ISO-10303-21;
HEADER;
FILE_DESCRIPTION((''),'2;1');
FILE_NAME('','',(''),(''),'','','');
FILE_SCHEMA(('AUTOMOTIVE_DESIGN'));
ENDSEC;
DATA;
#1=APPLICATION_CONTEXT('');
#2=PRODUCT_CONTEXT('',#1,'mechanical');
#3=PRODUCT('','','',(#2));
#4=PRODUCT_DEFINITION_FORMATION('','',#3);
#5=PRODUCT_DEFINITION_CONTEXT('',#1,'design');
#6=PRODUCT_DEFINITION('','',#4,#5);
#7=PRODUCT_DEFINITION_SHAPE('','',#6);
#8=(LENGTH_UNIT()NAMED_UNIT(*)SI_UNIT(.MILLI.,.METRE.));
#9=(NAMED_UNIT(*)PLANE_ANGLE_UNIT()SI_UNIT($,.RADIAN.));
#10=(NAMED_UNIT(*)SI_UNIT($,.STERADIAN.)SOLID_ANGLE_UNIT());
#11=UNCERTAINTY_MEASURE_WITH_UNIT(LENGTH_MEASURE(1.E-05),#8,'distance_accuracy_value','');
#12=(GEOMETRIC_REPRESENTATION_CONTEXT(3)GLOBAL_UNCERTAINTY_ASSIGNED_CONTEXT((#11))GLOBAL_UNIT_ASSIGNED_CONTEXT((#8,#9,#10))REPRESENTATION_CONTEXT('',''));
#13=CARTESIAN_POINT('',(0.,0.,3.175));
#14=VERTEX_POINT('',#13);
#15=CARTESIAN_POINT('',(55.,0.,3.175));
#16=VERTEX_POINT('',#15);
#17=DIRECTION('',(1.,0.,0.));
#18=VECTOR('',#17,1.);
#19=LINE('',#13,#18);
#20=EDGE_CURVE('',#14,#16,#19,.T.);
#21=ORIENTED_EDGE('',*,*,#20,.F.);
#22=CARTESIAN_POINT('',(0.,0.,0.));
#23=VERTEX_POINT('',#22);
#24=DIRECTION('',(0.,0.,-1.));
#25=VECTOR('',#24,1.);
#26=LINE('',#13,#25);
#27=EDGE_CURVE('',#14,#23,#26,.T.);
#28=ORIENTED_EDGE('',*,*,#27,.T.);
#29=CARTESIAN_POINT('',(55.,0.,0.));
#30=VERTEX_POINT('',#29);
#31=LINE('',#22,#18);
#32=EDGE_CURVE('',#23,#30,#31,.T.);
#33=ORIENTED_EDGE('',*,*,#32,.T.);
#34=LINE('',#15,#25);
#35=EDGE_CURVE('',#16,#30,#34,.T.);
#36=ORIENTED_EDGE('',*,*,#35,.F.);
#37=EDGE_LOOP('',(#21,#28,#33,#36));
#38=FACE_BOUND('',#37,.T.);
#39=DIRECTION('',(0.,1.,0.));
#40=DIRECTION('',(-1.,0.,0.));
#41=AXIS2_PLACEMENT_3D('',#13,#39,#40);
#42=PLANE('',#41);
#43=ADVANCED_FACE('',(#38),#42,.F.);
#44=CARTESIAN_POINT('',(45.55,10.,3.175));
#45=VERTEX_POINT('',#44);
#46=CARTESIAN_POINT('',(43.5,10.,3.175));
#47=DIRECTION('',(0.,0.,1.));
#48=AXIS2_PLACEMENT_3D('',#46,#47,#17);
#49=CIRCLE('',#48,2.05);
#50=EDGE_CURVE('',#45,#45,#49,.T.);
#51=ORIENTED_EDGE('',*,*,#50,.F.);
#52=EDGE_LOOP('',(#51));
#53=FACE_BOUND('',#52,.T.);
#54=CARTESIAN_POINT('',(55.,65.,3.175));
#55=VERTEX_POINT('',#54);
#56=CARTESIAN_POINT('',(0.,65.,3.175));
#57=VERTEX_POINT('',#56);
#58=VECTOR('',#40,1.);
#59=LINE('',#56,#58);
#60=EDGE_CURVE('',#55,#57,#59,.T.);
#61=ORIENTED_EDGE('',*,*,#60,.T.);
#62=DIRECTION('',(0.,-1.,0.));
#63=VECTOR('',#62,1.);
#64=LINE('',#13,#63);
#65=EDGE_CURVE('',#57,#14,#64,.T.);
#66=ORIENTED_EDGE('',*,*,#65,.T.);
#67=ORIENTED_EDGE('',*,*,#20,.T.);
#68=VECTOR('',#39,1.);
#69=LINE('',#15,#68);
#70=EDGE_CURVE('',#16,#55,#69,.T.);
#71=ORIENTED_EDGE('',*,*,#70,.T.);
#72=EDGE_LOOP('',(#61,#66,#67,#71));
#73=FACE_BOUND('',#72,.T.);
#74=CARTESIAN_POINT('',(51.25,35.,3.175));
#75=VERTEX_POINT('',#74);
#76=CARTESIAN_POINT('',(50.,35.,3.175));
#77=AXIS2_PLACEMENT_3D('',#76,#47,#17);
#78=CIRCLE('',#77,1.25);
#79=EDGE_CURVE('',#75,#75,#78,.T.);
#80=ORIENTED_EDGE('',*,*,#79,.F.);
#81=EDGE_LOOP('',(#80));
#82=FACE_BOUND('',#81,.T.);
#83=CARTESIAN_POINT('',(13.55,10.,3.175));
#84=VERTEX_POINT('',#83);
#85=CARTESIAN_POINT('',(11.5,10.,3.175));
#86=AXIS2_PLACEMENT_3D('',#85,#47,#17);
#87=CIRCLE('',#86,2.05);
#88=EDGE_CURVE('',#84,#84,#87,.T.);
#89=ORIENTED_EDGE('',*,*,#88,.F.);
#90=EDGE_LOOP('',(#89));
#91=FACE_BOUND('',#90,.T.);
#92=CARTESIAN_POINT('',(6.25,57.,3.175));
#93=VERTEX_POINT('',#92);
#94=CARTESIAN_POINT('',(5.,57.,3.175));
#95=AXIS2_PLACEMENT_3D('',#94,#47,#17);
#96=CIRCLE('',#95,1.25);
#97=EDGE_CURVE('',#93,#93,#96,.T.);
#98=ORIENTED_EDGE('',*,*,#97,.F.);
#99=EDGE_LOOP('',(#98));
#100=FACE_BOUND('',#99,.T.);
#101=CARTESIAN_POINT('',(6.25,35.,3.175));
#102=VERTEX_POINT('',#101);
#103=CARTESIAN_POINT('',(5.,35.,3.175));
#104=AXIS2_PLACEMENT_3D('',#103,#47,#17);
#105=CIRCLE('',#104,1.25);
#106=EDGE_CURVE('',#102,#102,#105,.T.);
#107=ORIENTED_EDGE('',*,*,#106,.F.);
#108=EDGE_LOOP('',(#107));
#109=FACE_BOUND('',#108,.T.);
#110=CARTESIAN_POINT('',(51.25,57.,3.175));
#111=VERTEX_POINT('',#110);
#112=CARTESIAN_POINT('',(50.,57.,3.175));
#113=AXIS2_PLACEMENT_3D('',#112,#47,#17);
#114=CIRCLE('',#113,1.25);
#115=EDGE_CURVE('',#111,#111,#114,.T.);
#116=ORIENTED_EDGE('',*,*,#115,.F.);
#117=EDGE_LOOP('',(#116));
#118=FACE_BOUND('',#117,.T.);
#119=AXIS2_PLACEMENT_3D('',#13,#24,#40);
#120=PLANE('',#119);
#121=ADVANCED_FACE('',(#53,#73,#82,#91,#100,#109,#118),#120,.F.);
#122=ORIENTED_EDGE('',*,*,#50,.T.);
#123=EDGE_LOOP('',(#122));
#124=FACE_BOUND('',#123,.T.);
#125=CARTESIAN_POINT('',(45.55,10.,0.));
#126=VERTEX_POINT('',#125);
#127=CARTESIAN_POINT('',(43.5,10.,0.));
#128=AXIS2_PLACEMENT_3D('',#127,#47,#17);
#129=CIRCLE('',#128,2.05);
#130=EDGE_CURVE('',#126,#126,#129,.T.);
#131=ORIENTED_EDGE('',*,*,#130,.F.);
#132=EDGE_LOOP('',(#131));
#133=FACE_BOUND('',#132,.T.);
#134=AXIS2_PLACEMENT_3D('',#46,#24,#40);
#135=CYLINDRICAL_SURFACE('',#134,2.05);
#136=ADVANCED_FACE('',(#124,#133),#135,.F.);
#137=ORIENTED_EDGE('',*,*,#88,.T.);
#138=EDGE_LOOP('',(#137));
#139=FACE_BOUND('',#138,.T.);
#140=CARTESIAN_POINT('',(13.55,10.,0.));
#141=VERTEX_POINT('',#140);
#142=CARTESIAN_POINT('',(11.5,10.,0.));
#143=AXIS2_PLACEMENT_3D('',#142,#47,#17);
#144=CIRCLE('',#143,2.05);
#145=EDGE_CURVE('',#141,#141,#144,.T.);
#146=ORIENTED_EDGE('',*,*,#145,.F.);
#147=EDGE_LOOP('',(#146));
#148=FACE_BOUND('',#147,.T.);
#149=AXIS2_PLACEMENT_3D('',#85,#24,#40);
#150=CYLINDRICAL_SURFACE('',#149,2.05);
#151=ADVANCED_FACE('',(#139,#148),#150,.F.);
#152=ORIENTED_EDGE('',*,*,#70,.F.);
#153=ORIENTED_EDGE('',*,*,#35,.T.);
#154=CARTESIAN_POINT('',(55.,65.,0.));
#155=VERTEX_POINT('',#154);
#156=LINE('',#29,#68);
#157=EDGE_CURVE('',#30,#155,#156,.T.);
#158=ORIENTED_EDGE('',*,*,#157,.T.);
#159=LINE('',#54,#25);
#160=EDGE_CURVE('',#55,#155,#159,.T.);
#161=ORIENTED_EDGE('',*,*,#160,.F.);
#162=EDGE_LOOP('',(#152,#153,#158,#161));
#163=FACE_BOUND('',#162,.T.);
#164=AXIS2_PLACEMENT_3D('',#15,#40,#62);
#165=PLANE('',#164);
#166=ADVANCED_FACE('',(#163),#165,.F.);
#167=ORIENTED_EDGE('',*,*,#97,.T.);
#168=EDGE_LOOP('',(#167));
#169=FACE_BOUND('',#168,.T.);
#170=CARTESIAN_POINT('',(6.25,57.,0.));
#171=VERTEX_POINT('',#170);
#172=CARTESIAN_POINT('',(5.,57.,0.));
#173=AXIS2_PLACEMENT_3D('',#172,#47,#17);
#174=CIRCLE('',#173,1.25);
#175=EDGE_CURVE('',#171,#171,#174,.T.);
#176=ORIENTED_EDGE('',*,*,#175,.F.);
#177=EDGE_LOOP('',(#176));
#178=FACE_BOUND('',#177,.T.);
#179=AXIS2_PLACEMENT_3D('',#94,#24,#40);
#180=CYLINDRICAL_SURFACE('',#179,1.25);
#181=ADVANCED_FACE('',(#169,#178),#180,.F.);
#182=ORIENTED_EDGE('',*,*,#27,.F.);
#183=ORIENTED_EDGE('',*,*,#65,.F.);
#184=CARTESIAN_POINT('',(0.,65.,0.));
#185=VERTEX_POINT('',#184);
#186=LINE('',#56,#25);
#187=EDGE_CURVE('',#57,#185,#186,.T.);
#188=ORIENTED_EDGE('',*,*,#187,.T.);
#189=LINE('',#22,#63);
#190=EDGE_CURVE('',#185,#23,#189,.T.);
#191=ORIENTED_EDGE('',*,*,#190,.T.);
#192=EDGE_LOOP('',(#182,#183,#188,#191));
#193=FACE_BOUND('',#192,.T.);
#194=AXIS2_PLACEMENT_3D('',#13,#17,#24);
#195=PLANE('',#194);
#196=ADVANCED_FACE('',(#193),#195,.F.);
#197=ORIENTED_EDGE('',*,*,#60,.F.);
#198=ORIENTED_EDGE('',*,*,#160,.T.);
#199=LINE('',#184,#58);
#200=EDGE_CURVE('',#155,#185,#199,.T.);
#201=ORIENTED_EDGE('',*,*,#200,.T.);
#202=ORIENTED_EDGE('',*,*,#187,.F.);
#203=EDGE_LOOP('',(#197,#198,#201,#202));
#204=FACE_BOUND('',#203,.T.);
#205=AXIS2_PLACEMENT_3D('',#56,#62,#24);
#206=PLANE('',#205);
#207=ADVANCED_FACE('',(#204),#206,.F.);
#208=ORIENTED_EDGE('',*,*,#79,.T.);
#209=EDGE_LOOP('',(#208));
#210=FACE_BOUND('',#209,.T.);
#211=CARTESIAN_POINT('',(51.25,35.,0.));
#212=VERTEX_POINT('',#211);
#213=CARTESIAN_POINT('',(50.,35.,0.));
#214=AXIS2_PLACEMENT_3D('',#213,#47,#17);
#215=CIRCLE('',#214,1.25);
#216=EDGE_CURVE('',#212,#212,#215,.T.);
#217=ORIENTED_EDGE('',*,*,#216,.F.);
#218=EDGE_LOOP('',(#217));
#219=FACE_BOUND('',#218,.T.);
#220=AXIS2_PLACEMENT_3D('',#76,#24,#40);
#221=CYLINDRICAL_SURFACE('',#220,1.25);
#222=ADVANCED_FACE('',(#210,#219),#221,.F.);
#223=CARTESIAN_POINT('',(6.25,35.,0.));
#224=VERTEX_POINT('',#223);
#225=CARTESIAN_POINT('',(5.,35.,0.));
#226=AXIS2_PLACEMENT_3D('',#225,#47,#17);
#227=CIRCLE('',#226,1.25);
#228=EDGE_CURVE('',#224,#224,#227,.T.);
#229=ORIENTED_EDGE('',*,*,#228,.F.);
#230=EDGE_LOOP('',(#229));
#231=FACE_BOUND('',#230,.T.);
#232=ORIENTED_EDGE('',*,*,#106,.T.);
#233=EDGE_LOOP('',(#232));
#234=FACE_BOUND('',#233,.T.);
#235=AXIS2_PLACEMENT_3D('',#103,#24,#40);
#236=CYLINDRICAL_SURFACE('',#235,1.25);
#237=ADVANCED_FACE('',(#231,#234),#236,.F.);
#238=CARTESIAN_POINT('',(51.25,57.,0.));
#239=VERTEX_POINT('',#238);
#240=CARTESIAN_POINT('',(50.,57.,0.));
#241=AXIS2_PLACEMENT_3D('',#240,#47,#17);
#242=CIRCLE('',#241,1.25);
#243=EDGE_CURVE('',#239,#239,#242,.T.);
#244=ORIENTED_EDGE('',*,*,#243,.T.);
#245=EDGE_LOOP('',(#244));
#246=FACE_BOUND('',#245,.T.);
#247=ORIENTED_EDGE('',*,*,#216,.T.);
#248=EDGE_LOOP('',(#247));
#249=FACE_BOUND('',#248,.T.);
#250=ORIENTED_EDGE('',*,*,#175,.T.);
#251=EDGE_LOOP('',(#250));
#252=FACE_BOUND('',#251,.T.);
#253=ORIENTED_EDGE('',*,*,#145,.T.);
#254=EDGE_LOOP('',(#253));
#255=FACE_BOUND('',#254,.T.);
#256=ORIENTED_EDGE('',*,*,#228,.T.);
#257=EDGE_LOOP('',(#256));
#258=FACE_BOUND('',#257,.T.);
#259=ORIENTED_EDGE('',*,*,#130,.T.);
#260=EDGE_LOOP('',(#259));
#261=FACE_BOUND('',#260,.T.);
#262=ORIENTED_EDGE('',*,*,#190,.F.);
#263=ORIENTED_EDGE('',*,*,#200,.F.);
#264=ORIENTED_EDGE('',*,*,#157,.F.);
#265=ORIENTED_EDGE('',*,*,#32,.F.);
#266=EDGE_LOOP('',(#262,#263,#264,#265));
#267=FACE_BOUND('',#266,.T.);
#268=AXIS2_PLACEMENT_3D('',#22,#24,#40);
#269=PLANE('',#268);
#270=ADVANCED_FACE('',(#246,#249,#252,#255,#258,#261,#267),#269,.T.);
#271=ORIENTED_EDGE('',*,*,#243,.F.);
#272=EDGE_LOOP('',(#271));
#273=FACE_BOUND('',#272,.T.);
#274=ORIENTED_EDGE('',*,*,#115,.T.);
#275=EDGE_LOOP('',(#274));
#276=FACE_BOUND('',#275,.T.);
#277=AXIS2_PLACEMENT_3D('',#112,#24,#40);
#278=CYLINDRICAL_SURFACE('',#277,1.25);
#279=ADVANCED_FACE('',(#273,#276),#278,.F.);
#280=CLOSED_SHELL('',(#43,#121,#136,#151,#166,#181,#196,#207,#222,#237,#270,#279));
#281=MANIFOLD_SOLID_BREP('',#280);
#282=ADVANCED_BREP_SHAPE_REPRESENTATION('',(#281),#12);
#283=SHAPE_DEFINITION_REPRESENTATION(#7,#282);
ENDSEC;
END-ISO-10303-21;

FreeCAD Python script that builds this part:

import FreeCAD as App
import Part
import Sketcher
from FreeCAD import Vector

doc = App.newDocument("Part")
body = doc.addObject("PartDesign::Body", "Body")

# Sketch on XY plane
sketch1 = doc.addObject("Sketcher::SketchObject", "Sketch")
body.addObject(sketch1)
sketch1.AttachmentSupport = (doc.XY_Plane, [""])
sketch1.MapMode = "FlatFace"
sketch1.addGeometry([
    Part.LineSegment(Vector(0, 65, 0), Vector(0, 0, 0)),  # 0
    Part.LineSegment(Vector(0, 0, 0), Vector(55, 0, 0)),  # 1
    Part.LineSegment(Vector(55, 0, 0), Vector(55, 65, 0)),  # 2
    Part.LineSegment(Vector(55, 65, 0), Vector(0, 65, 0)),  # 3
    Part.Circle(Vector(11.5, 10, 0), Vector(0, 0, 1), 2.05),  # 4
    Part.Circle(Vector(43.5, 10, 0), Vector(0, 0, 1), 2.05),  # 5
    Part.Circle(Vector(5, 35, 0), Vector(0, 0, 1), 1.25),  # 6
    Part.Circle(Vector(5, 57, 0), Vector(0, 0, 1), 1.25),  # 7
    Part.Circle(Vector(50, 35, 0), Vector(0, 0, 1), 1.25),  # 8
    Part.Circle(Vector(50, 57, 0), Vector(0, 0, 1), 1.25),  # 9
], False)
sketch1.addConstraint([
    Sketcher.Constraint("Coincident", 0, 2, 1, 1),
    Sketcher.Constraint("Coincident", 1, 2, 2, 1),
    Sketcher.Constraint("Coincident", 2, 2, 3, 1),
    Sketcher.Constraint("Coincident", 3, 2, 0, 1),
    Sketcher.Constraint("Vertical", 0),
    Sketcher.Constraint("Horizontal", 1),
    Sketcher.Constraint("Vertical", 2),
    Sketcher.Constraint("Horizontal", 3),
    Sketcher.Constraint("Coincident", 0, 2, -1, 1),
    Sketcher.Constraint("Equal", 4, 5),
    Sketcher.Constraint("Equal", 6, 7),
    Sketcher.Constraint("Equal", 7, 8),
    Sketcher.Constraint("Equal", 8, 9),
    Sketcher.Constraint("Horizontal", 4, 3, 5, 3),
    Sketcher.Constraint("Horizontal", 6, 3, 8, 3),
    Sketcher.Constraint("Horizontal", 7, 3, 9, 3),
    Sketcher.Constraint("Vertical", 6, 3, 7, 3),
    Sketcher.Constraint("Vertical", 8, 3, 9, 3),
    Sketcher.Constraint("Diameter", 4, 4.1),
    Sketcher.Constraint("Diameter", 6, 2.5),
    Sketcher.Constraint("DistanceX", 1, 1, 1, 2, 55.0),
    Sketcher.Constraint("DistanceY", 0, 2, 0, 1, 65.0),
    Sketcher.Constraint("DistanceY", -1, 1, 4, 3, 10.0),
    Sketcher.Constraint("DistanceX", -1, 1, 6, 3, 5.0),
    Sketcher.Constraint("DistanceY", -1, 1, 6, 3, 35.0),
    Sketcher.Constraint("DistanceY", -1, 1, 7, 3, 57.0),
    Sketcher.Constraint("DistanceX", -1, 1, 8, 3, 50.0),
    Sketcher.Constraint("DistanceX", 4, 3, 5, 3, 32.0),
    Sketcher.Constraint("DistanceX", -1, 1, 4, 3, 11.5),
])
pad1 = doc.addObject("PartDesign::Pad", "Pad")
body.addObject(pad1)
pad1.Profile = sketch1
pad1.Length = 3.175

doc.recompute()
